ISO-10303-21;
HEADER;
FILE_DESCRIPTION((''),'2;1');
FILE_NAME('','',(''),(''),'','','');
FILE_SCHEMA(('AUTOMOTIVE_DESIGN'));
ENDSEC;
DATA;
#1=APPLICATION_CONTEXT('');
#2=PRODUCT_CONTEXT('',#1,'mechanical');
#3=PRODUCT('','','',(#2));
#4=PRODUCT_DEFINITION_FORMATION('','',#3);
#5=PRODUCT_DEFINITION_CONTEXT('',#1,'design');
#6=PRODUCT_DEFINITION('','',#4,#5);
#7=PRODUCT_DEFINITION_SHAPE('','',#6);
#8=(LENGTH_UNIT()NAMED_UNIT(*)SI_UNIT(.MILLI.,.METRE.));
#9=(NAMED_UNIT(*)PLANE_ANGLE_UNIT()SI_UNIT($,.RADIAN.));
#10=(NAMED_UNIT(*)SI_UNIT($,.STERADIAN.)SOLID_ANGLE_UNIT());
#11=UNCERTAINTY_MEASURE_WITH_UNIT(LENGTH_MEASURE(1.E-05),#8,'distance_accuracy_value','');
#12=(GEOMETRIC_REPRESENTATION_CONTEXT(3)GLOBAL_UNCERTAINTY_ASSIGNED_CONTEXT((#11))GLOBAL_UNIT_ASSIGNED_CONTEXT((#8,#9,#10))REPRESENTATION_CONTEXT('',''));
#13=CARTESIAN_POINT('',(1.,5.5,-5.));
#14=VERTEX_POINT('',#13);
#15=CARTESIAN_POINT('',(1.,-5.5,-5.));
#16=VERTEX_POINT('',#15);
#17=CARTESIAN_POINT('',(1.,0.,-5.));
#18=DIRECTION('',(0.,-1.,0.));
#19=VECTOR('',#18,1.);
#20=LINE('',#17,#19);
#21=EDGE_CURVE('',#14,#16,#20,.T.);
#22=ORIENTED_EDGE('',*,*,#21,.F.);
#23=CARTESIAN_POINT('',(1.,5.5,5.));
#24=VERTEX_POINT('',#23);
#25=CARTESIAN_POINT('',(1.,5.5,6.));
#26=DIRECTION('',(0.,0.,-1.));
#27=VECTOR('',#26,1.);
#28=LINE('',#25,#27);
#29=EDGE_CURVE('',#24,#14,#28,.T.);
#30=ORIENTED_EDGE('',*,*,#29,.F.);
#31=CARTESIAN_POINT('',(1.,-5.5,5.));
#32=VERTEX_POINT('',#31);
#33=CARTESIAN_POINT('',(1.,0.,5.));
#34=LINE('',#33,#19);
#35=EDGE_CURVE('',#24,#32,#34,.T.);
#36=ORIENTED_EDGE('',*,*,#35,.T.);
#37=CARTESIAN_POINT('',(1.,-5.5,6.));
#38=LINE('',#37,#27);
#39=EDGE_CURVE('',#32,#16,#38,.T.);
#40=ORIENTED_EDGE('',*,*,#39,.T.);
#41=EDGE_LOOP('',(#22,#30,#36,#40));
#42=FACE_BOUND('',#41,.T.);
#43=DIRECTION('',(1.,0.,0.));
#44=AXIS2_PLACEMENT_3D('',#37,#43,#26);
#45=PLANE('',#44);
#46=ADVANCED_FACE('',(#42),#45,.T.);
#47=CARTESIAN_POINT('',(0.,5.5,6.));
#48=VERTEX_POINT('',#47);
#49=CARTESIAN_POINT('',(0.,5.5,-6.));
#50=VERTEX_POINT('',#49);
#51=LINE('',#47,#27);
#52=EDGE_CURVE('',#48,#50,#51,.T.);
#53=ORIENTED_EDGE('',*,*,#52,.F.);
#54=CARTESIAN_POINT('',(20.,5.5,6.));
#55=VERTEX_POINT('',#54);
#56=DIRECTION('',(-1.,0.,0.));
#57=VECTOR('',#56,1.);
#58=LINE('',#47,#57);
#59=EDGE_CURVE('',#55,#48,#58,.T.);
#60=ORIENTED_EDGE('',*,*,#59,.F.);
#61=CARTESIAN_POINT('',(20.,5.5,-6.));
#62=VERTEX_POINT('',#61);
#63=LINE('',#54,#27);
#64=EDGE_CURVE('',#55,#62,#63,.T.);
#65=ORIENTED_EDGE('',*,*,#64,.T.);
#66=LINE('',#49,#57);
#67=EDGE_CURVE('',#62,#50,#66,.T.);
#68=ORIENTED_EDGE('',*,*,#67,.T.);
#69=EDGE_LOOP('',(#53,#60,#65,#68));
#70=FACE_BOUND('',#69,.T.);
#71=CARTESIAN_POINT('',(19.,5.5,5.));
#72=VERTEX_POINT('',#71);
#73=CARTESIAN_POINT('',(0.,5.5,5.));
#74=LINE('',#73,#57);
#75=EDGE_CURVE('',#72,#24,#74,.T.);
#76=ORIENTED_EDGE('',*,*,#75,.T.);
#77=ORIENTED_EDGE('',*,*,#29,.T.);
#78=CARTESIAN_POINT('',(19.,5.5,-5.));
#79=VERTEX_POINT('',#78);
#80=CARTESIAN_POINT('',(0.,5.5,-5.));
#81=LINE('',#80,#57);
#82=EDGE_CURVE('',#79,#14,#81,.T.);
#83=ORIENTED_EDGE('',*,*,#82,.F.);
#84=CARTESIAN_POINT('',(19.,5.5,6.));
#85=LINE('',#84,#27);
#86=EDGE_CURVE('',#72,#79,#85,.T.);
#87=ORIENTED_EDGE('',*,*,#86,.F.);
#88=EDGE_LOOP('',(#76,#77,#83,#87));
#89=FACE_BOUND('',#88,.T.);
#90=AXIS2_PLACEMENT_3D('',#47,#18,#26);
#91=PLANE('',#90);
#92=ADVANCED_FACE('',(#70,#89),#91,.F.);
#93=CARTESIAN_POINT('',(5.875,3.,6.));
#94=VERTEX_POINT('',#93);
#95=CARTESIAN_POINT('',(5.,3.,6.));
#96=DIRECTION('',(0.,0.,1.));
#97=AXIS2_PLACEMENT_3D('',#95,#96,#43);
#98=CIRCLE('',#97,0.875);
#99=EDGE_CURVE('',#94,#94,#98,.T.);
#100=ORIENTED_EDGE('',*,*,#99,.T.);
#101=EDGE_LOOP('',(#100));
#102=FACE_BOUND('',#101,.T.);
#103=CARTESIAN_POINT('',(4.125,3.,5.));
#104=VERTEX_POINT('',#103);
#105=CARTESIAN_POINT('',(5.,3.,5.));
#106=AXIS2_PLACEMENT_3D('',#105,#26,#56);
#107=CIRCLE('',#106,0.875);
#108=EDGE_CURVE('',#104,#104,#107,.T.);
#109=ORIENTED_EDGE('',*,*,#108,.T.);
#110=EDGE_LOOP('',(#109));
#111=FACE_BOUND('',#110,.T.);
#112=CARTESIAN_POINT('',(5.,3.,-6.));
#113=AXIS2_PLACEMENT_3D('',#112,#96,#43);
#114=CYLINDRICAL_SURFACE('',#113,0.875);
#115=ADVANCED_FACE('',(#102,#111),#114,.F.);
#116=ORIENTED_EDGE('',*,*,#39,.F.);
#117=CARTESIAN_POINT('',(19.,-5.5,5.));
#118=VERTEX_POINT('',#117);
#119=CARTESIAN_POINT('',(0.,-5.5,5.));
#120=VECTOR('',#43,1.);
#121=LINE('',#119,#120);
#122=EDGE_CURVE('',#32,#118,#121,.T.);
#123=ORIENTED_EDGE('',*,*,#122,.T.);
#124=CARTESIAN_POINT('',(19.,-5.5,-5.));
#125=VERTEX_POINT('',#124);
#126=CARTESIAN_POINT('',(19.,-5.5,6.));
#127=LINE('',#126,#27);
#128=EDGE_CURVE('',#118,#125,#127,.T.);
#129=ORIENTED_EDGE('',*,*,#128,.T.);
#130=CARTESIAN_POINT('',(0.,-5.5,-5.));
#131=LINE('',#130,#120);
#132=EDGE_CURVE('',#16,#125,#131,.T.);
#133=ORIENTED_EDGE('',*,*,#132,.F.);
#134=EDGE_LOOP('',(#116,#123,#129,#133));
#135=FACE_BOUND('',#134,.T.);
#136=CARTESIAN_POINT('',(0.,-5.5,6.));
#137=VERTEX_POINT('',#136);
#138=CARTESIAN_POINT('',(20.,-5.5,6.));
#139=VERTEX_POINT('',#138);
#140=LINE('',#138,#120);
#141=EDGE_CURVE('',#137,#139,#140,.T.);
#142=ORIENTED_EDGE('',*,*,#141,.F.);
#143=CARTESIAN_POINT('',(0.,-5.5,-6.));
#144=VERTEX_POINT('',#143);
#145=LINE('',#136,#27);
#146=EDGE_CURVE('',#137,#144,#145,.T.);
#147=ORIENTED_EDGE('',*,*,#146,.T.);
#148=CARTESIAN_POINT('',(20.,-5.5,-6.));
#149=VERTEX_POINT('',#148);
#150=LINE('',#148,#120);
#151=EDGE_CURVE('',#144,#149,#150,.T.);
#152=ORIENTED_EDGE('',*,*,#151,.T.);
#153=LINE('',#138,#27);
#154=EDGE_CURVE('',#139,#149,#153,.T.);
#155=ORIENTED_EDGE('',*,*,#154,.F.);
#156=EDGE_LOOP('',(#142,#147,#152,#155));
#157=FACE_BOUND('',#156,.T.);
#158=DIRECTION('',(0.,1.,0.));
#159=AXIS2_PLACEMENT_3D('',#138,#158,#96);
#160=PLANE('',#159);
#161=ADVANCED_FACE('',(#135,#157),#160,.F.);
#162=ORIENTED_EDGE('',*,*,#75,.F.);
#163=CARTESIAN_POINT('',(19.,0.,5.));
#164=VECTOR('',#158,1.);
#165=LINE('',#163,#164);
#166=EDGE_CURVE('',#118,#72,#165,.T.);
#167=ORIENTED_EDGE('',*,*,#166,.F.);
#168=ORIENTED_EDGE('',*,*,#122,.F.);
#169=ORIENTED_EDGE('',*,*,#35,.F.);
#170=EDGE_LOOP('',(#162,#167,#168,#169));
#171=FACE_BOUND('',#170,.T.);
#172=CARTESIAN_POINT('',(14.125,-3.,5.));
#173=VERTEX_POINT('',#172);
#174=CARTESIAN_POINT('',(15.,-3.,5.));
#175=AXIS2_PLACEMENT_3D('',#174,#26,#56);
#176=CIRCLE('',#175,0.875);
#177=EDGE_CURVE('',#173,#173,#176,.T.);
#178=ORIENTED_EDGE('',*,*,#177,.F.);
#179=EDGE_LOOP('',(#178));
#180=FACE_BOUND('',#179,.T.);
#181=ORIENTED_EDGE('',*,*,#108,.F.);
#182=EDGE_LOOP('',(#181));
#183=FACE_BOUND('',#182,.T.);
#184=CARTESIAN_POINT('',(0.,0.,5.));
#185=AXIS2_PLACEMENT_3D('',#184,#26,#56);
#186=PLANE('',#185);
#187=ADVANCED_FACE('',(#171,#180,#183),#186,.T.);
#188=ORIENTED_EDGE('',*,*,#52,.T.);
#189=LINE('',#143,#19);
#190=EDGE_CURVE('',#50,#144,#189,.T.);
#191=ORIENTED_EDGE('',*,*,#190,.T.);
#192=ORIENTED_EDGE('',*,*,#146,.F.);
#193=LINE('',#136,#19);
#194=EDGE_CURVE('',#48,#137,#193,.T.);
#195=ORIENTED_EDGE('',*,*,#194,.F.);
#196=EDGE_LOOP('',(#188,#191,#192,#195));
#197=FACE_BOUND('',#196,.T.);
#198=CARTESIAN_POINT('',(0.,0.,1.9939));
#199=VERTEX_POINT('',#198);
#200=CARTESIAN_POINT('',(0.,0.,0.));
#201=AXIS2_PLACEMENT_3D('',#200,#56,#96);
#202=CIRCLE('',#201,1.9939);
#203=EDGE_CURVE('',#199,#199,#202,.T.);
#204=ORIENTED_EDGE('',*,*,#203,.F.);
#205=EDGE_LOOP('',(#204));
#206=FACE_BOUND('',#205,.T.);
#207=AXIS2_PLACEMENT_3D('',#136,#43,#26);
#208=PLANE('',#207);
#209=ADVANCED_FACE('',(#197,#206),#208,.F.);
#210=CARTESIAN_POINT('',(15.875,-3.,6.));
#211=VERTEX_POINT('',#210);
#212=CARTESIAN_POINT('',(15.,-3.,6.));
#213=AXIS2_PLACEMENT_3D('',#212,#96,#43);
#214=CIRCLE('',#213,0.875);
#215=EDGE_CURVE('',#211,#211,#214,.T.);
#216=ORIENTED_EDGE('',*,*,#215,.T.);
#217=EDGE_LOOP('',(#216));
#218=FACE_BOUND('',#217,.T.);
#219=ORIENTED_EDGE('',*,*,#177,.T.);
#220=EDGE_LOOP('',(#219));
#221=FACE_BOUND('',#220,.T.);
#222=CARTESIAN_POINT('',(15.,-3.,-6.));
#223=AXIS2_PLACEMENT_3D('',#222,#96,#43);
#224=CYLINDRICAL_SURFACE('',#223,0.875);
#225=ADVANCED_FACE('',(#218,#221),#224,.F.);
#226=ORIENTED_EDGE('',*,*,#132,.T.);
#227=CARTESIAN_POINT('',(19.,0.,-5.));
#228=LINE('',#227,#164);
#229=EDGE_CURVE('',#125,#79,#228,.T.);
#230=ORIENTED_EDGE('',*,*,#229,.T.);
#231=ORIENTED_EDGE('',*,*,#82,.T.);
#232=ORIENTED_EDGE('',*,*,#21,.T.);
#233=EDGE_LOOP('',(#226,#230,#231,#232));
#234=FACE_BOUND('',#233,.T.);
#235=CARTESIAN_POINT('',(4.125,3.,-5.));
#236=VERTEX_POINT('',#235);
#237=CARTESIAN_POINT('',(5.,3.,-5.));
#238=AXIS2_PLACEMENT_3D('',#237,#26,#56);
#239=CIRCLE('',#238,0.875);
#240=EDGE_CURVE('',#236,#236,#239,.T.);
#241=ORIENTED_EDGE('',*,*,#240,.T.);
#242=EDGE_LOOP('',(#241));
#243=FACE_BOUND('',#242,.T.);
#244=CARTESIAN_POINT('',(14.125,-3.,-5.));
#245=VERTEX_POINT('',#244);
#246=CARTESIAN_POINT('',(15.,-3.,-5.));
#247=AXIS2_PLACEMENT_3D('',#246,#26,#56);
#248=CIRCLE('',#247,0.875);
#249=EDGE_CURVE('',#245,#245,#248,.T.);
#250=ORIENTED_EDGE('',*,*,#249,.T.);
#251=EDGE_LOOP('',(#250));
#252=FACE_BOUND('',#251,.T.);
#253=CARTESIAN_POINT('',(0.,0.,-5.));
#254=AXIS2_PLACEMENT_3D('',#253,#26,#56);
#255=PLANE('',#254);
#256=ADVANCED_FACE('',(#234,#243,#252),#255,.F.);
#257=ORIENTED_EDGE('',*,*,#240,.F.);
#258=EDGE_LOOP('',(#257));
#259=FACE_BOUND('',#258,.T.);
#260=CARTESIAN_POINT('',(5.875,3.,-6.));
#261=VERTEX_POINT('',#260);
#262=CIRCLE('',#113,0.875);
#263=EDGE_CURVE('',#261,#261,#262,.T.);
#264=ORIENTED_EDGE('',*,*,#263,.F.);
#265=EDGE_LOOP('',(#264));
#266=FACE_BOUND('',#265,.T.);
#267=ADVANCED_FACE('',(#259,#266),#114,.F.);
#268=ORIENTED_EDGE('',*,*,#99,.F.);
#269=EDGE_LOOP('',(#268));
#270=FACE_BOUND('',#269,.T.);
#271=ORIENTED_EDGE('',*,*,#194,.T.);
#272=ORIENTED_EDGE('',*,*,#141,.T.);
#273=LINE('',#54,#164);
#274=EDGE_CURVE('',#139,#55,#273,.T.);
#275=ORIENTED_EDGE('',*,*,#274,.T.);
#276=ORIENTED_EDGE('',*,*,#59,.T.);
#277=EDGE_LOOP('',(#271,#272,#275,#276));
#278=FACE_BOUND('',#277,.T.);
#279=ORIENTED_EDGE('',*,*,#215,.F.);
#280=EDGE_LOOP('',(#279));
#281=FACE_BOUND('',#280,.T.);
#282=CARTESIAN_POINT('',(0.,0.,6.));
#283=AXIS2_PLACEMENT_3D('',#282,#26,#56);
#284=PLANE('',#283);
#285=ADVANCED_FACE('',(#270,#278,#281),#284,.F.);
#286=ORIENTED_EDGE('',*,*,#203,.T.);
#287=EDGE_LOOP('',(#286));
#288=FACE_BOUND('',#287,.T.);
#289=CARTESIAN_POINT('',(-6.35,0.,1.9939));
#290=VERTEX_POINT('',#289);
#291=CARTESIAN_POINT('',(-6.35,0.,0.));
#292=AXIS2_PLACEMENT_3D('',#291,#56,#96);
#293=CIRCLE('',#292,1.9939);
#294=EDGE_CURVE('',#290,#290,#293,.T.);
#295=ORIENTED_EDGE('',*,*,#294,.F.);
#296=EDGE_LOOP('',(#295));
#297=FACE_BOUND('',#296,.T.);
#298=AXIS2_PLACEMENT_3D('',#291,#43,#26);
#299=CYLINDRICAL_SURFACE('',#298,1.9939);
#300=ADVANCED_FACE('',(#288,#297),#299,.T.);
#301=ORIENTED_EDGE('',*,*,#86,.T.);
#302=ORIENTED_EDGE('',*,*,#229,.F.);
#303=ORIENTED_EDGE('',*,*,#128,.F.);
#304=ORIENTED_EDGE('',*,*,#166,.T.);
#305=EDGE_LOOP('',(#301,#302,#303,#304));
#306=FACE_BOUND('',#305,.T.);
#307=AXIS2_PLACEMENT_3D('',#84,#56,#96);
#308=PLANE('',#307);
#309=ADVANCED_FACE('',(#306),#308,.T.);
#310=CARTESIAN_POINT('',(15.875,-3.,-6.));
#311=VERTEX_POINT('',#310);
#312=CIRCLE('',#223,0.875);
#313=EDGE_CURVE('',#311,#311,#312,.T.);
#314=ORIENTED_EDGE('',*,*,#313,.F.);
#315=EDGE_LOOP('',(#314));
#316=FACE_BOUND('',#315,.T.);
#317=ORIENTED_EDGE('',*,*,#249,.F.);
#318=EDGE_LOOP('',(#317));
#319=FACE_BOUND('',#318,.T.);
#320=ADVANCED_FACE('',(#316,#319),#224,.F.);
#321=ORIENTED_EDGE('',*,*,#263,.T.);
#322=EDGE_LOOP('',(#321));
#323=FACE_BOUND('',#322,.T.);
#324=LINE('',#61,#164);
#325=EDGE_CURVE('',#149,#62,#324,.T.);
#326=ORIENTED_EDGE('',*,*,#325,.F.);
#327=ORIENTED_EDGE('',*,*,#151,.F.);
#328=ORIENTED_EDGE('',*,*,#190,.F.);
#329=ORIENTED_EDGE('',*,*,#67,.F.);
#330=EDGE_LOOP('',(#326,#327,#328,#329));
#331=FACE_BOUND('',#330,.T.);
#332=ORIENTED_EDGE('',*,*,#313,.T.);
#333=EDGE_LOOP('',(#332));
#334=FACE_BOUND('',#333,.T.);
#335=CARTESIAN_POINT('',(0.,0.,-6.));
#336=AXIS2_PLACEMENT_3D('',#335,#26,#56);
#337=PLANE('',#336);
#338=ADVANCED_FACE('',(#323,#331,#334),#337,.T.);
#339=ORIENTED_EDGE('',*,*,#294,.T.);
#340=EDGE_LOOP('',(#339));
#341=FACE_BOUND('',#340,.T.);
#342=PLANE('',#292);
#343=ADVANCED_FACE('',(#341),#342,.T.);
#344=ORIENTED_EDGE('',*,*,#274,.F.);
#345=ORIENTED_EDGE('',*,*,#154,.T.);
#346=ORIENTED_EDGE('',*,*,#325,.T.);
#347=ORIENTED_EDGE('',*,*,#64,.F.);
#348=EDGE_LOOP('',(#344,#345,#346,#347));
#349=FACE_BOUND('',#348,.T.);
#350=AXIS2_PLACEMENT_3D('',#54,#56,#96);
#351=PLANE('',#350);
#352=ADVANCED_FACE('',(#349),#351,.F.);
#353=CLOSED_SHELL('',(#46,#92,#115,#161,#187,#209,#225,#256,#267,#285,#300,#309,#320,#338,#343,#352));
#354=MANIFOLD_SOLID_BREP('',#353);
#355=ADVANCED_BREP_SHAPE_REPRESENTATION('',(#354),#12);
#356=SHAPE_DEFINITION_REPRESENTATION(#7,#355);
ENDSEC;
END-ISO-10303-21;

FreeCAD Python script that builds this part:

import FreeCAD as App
import Part
import Sketcher


def faces_at(feature, points):
    """Names of the faces that lie closest to the given points."""
    faces = feature.Shape.Faces
    near = lambda p: min(range(len(faces)), key=lambda i: faces[i].distToShape(Part.Vertex(*p))[0])
    return sorted({f"Face{near(p) + 1}" for p in points})

doc = App.newDocument("Part")
params = doc.addObject("Spreadsheet::Sheet", "Params")
for row, (alias, value) in enumerate([
    ("sketch1_width", "20 mm"),
    ("sketch1_height", "11 mm"),
    ("pad1_length", "12 mm"),
    ("thickness_wall", "1 mm"),
    ("pad2_length", "6.35 mm"),
    ("sketch3_diameter", "1.75 mm"),
], start=1):
    params.set(f"A{row}", alias)
    params.set(f"B{row}", "=" + value)
    params.setAlias(f"B{row}", alias)

body = doc.addObject("PartDesign::Body", "Body")

# Sketch on XY plane
sketch1 = body.newObject("Sketcher::SketchObject", "Sketch")
sketch1.AttachmentSupport = (doc.getObject("XY_Plane"), [""])
sketch1.MapMode = "FlatFace"
sketch1.addGeometry(Part.LineSegment(App.Vector(0, 6, 0), App.Vector(0, -6, 0)), False)
sketch1.addGeometry(Part.LineSegment(App.Vector(0, -6, 0), App.Vector(20, -6, 0)), False)
sketch1.addGeometry(Part.LineSegment(App.Vector(20, -6, 0), App.Vector(20, 6, 0)), False)
sketch1.addGeometry(Part.LineSegment(App.Vector(20, 6, 0), App.Vector(0, 6, 0)), False)
sketch1.addConstraint(Sketcher.Constraint("Coincident", 0, 2, 1, 1))
sketch1.addConstraint(Sketcher.Constraint("Coincident", 1, 2, 2, 1))
sketch1.addConstraint(Sketcher.Constraint("Coincident", 2, 2, 3, 1))
sketch1.addConstraint(Sketcher.Constraint("Coincident", 3, 2, 0, 1))
sketch1.addConstraint(Sketcher.Constraint("Vertical", 0))
sketch1.addConstraint(Sketcher.Constraint("Horizontal", 1))
sketch1.addConstraint(Sketcher.Constraint("Vertical", 2))
sketch1.addConstraint(Sketcher.Constraint("Horizontal", 3))
sketch1.addConstraint(Sketcher.Constraint("Symmetric", 0, 2, 3, 2, -1, 1))
sketch1.addConstraint(Sketcher.Constraint("DistanceX", 1, 1, 1, 2, 20.0))
sketch1.addConstraint(Sketcher.Constraint("DistanceY", 0, 2, 0, 1, 11.0))
sketch1.setExpression("Constraints[9]", "Params.sketch1_width")
sketch1.setExpression("Constraints[10]", "Params.sketch1_height")
pad1 = body.newObject("PartDesign::Pad", "Pad")
pad1.Profile = sketch1
pad1.setExpression("Length", "Params.pad1_length")
pad1.Midplane = True
doc.recompute()

thickness = body.newObject("PartDesign::Thickness", "Thickness")
thickness.Base = (pad1, faces_at(pad1, [(10, 5.5, 0), (10, -5.5, 0)]))
thickness.setExpression("Value", "Params.thickness_wall")
thickness.Reversed = True
thickness.Join = "Intersection"

# Sketch on YZ plane
sketch2 = body.newObject("Sketcher::SketchObject", "Sketch001")
sketch2.AttachmentSupport = (doc.getObject("YZ_Plane"), [""])
sketch2.MapMode = "FlatFace"
sketch2.addGeometry(Part.Circle(App.Vector(0, 0, 0), App.Vector(0, 0, 1), 2), False)
sketch2.addConstraint(Sketcher.Constraint("Coincident", 0, 3, -1, 1))
sketch2.addConstraint(Sketcher.Constraint("Diameter", 0, 3.9878))
pad2 = body.newObject("PartDesign::Pad", "Pad001")
pad2.Profile = sketch2
pad2.setExpression("Length", "Params.pad2_length")
pad2.Reversed = True

# Sketch on XY plane
sketch3 = body.newObject("Sketcher::SketchObject", "Sketch002")
sketch3.AttachmentSupport = (doc.getObject("XY_Plane"), [""])
sketch3.MapMode = "FlatFace"
sketch3.AttachmentOffset = App.Placement(App.Vector(0, 0, 6), App.Rotation())
sketch3.addGeometry(Part.Circle(App.Vector(5, 3, 0), App.Vector(0, 0, 1), 0.9), False)
sketch3.addGeometry(Part.Circle(App.Vector(15, -3, 0), App.Vector(0, 0, 1), 0.9), False)
sketch3.addConstraint(Sketcher.Constraint("Equal", 0, 1))
sketch3.addConstraint(Sketcher.Constraint("Diameter", 0, 1.75))
sketch3.addConstraint(Sketcher.Constraint("DistanceX", -1, 1, 0, 3, 5.0))
sketch3.addConstraint(Sketcher.Constraint("DistanceY", -1, 1, 0, 3, 3.0))
sketch3.addConstraint(Sketcher.Constraint("DistanceX", -1, 1, 1, 3, 15.0))
sketch3.addConstraint(Sketcher.Constraint("DistanceY", 1, 3, -1, 1, 3.0))
sketch3.setExpression("Constraints[1]", "Params.sketch3_diameter")
pocket1 = body.newObject("PartDesign::Pocket", "Pocket")
pocket1.Profile = sketch3
pocket1.Type = "ThroughAll"

doc.recompute()
